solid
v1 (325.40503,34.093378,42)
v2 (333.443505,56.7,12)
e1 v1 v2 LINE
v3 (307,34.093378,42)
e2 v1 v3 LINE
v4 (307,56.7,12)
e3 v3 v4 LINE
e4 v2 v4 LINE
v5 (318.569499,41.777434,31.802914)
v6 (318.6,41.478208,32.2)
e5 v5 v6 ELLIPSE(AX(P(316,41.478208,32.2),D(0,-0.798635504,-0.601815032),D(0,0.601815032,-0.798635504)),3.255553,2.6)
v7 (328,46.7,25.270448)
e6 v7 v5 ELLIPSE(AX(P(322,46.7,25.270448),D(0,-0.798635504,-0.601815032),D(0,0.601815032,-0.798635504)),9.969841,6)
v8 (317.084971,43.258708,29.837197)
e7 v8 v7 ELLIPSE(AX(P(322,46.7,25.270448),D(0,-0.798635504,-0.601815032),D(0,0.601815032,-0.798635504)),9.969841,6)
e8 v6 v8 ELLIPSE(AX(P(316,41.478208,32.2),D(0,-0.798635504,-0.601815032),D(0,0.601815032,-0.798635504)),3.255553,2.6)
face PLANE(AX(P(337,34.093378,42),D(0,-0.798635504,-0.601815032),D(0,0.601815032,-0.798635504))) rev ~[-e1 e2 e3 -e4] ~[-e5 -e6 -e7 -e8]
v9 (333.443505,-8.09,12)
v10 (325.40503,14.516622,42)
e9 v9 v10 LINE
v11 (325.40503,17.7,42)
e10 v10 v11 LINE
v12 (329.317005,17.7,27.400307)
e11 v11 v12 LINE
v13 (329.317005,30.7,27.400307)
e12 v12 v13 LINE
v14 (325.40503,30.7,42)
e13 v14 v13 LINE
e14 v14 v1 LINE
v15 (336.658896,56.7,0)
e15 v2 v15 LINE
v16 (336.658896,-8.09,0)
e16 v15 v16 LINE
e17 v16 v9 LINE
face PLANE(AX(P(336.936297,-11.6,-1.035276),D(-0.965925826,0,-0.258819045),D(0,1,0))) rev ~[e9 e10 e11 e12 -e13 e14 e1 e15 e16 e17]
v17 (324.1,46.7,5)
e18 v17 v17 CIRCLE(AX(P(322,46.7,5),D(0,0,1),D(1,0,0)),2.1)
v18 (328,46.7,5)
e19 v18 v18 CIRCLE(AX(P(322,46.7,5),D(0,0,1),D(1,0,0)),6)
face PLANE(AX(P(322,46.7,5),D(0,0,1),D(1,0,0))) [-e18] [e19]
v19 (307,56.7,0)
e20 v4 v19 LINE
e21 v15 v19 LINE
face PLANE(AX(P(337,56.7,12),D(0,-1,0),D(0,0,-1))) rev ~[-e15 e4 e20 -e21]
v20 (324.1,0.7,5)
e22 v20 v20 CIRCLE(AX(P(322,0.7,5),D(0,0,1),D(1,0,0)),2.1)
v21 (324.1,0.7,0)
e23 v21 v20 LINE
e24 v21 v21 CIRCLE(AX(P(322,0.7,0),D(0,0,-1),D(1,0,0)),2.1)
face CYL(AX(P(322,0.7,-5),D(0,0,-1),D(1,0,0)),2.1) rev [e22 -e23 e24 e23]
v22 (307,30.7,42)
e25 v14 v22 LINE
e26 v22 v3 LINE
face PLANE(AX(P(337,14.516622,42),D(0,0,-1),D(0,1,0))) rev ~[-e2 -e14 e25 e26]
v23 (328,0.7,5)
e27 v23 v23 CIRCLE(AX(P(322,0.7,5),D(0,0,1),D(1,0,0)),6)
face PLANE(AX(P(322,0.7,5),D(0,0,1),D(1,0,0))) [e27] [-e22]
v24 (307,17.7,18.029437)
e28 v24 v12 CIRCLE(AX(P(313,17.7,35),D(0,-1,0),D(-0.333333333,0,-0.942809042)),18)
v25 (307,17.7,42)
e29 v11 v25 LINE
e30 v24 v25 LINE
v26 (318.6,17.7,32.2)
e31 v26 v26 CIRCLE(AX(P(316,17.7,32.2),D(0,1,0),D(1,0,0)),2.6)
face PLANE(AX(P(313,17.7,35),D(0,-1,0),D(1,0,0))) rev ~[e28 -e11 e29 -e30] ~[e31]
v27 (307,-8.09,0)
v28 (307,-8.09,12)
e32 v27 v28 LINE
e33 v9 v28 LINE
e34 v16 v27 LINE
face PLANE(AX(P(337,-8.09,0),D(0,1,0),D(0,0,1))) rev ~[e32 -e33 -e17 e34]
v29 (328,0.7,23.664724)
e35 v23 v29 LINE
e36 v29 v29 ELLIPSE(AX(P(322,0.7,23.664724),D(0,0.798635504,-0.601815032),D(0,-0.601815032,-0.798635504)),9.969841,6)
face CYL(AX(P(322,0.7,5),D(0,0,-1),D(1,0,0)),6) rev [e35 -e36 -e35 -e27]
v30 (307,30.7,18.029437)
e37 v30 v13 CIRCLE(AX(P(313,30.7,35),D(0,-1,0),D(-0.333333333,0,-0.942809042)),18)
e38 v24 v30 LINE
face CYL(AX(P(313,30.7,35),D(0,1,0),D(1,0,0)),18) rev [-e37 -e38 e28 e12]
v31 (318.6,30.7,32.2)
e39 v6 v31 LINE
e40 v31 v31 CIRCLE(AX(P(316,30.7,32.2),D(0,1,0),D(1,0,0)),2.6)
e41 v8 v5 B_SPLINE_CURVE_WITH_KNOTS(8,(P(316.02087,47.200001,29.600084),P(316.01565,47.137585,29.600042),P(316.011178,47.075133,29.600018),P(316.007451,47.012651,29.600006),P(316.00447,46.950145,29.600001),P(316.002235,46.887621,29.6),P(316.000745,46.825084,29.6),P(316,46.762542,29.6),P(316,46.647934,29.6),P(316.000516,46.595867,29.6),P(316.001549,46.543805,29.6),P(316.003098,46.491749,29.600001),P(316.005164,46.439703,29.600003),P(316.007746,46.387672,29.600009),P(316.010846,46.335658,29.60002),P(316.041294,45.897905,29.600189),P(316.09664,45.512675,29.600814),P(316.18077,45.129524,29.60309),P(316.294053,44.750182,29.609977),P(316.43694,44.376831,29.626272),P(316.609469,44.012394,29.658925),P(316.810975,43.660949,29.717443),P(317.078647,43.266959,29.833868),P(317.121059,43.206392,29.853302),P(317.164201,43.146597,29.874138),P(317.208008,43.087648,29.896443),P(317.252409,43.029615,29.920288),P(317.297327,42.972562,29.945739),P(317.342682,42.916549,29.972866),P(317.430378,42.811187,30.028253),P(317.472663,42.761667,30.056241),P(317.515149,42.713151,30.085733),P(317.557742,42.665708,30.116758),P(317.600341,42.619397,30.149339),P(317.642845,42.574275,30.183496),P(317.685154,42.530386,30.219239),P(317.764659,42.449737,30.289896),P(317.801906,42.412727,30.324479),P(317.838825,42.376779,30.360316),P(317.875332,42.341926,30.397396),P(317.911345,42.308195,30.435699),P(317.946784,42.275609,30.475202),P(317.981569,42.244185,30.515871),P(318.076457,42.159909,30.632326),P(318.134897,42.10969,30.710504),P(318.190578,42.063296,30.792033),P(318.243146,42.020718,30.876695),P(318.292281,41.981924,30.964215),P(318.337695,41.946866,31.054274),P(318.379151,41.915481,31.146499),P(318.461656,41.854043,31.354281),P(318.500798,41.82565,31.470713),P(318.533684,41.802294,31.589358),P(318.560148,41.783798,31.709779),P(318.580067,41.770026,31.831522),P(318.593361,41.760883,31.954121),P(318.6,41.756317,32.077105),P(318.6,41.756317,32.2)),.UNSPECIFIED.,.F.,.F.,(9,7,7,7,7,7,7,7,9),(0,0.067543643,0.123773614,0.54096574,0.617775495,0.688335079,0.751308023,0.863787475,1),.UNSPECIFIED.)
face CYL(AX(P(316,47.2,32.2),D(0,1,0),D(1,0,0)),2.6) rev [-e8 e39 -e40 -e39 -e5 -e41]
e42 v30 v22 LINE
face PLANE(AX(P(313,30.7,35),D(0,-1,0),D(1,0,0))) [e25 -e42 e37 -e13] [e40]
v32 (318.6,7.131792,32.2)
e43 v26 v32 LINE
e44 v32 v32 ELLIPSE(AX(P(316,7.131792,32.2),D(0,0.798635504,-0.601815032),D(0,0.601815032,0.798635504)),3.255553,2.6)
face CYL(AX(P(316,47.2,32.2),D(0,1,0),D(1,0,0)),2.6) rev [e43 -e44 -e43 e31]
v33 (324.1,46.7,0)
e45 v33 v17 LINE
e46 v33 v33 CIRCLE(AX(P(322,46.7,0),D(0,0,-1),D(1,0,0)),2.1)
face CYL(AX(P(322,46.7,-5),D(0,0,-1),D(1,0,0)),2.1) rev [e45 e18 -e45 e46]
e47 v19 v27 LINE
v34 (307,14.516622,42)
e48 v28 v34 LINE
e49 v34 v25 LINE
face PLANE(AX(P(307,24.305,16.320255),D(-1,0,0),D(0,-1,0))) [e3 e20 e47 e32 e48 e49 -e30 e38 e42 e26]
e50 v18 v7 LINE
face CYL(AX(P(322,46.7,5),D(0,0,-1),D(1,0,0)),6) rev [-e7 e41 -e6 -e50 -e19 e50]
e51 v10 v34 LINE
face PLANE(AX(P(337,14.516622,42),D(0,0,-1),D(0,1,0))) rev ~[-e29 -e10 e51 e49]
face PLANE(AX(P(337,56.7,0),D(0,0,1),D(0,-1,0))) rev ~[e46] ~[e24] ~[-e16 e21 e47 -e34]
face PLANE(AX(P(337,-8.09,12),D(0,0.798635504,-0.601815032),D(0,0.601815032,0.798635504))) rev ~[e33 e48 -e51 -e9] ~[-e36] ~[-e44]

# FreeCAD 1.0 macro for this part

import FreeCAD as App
import Part
import Sketcher
from FreeCAD import Vector
Q = App.Units.Quantity

doc = App.newDocument("Part")
body = doc.addObject("PartDesign::Body", "Body")

sketch1 = body.newObject("Sketcher::SketchObject", "Sketch")
sketch1.AttachmentSupport = (doc.getObject("XY_Plane"), [""])
sketch1.MapMode = "FlatFace"
sketch1.addGeometry([
    Part.LineSegment(Vector(0, 73, 0), Vector(0, 0, 0)),
    Part.LineSegment(Vector(0, 0, 0), Vector(14, 0, 0)),
    Part.LineSegment(Vector(14, 0, 0), Vector(14, 73, 0)),
    Part.LineSegment(Vector(14, 73, 0), Vector(0, 73, 0)),
], False)
sketch1.addConstraint([
    Sketcher.Constraint("Coincident", 0, 2, 1, 1),
    Sketcher.Constraint("Coincident", 1, 2, 2, 1),
    Sketcher.Constraint("Coincident", 2, 2, 3, 1),
    Sketcher.Constraint("Coincident", 3, 2, 0, 1),
    Sketcher.Constraint("Vertical", 0),
    Sketcher.Constraint("Horizontal", 1),
    Sketcher.Constraint("Vertical", 2),
    Sketcher.Constraint("Horizontal", 3),
    Sketcher.Constraint("Coincident", 0, 2, -1, 1),
    Sketcher.Constraint("DistanceX", 1, 1, 1, 2, Q("14 mm")),
    Sketcher.Constraint("DistanceY", 0, 2, 0, 1, Q("73 mm")),
])
pad1 = body.newObject("PartDesign::Pad", "Pad")
pad1.Profile = sketch1
pad1.Length = 51
body2 = doc.addObject("PartDesign::Body", "Body001")
doc.recompute()

body.Placement = App.Placement(Vector(336.936297, -53.3, -1.035276), App.Rotation(Vector(0, -1, 0), 15))
boolean = body2.newObject("PartDesign::Boolean", "Boolean")
boolean.Type = "Fuse"
boolean.addObjects([body])
body3 = doc.addObject("PartDesign::Body", "Body002")

sketch2 = body3.newObject("Sketcher::SketchObject", "Sketch001")
sketch2.AttachmentSupport = (doc.getObject("XZ_Plane002"), [""])
sketch2.MapMode = "FlatFace"
sketch2.AttachmentOffset = App.Placement(Vector(0, 0, -5.5), App.Rotation())
sketch2.addGeometry(Part.Circle(Vector(316, 32.2, 0), Vector(0, 0, 1), 2.6), False)
sketch2.addConstraint([
    Sketcher.Constraint("Diameter", 0, Q("5.2 mm")),
    Sketcher.Constraint("DistanceX", -1, 1, 0, 3, Q("316 mm")),
    Sketcher.Constraint("DistanceY", -1, 1, 0, 3, Q("32.2 mm")),
])
pad2 = body3.newObject("PartDesign::Pad", "Pad001")
pad2.Profile = sketch2
pad2.Length = 47
body4 = doc.addObject("PartDesign::Body", "Body003")

sketch3 = body4.newObject("Sketcher::SketchObject", "Sketch002")
sketch3.AttachmentSupport = (doc.getObject("XY_Plane003"), [""])
sketch3.MapMode = "FlatFace"
sketch3.AttachmentOffset = App.Placement(Vector(0, 0, 10), App.Rotation())
sketch3.addGeometry(Part.Circle(Vector(0, 0, 0), Vector(0, 0, 1), 6), False)
sketch3.addConstraint([
    Sketcher.Constraint("Coincident", 0, 3, -1, 1),
    Sketcher.Constraint("Diameter", 0, Q("12 mm")),
])
pad3 = body4.newObject("PartDesign::Pad", "Pad002")
pad3.Profile = sketch3
pad3.Length = 40
body5 = doc.addObject("PartDesign::Body", "Body004")

sketch4 = body5.newObject("Sketcher::SketchObject", "Sketch003")
sketch4.AttachmentSupport = (doc.getObject("XY_Plane004"), [""])
sketch4.MapMode = "FlatFace"
sketch4.addGeometry(Part.Circle(Vector(0, 0, 0), Vector(0, 0, 1), 2.1), False)
sketch4.addConstraint([
    Sketcher.Constraint("Coincident", 0, 3, -1, 1),
    Sketcher.Constraint("Diameter", 0, Q("4.2 mm")),
])
pad4 = body5.newObject("PartDesign::Pad", "Pad003")
pad4.Profile = sketch4
pad4.Length = 10
doc.recompute()

boolean2 = body5.newObject("PartDesign::Boolean", "Boolean001")
boolean2.Type = "Fuse"
boolean2.addObjects([body4])
body6 = doc.addObject("PartDesign::Body", "Body005")
doc.recompute()

body5.Placement = App.Placement(Vector(322, 5, -5), App.Rotation(Vector(0, 0, 1), 0))
boolean3 = body6.newObject("PartDesign::Boolean", "Boolean002")
boolean3.Type = "Fuse"
boolean3.addObjects([body5])
body7 = doc.addObject("PartDesign::Body", "Body006")

sketch5 = body7.newObject("Sketcher::SketchObject", "Sketch004")
sketch5.AttachmentSupport = (doc.getObject("XY_Plane006"), [""])
sketch5.MapMode = "FlatFace"
sketch5.AttachmentOffset = App.Placement(Vector(0, 0, 10), App.Rotation())
sketch5.addGeometry(Part.Circle(Vector(0, 0, 0), Vector(0, 0, 1), 6), False)
sketch5.addConstraint([
    Sketcher.Constraint("Coincident", 0, 3, -1, 1),
    Sketcher.Constraint("Diameter", 0, Q("12 mm")),
])
pad5 = body7.newObject("PartDesign::Pad", "Pad004")
pad5.Profile = sketch5
pad5.Length = 40
body8 = doc.addObject("PartDesign::Body", "Body007")

sketch6 = body8.newObject("Sketcher::SketchObject", "Sketch005")
sketch6.AttachmentSupport = (doc.getObject("XY_Plane007"), [""])
sketch6.MapMode = "FlatFace"
sketch6.addGeometry(Part.Circle(Vector(0, 0, 0), Vector(0, 0, 1), 2.1), False)
sketch6.addConstraint([
    Sketcher.Constraint("Coincident", 0, 3, -1, 1),
    Sketcher.Constraint("Diameter", 0, Q("4.2 mm")),
])
pad6 = body8.newObject("PartDesign::Pad", "Pad005")
pad6.Profile = sketch6
pad6.Length = 10
doc.recompute()

boolean4 = body8.newObject("PartDesign::Boolean", "Boolean003")
boolean4.Type = "Fuse"
boolean4.addObjects([body7])
body9 = doc.addObject("PartDesign::Body", "Body008")
doc.recompute()

body8.Placement = App.Placement(Vector(322, -41, -5), App.Rotation(Vector(0, 0, 1), 0))
boolean5 = body9.newObject("PartDesign::Boolean", "Boolean004")
boolean5.Type = "Fuse"
boolean5.addObjects([body8])
body10 = doc.addObject("PartDesign::Body", "Body009")

sketch7 = body10.newObject("Sketcher::SketchObject", "Sketch006")
sketch7.AttachmentSupport = (doc.getObject("XZ_Plane009"), [""])
sketch7.MapMode = "FlatFace"
sketch7.AttachmentOffset = App.Placement(Vector(0, 0, 11), App.Rotation())
sketch7.addGeometry(Part.Circle(Vector(313, 35, 0), Vector(0, 0, 1), 18), False)
sketch7.addConstraint([
    Sketcher.Constraint("Diameter", 0, Q("36 mm")),
    Sketcher.Constraint("DistanceX", -1, 1, 0, 3, Q("313 mm")),
    Sketcher.Constraint("DistanceY", -1, 1, 0, 3, Q("35 mm")),
])
pad7 = body10.newObject("PartDesign::Pad", "Pad006")
pad7.Profile = sketch7
pad7.Length = 13
body11 = doc.addObject("PartDesign::Body", "Body010")

sketch8 = body11.newObject("Sketcher::SketchObject", "Sketch007")
sketch8.AttachmentSupport = (doc.getObject("YZ_Plane010"), [""])
sketch8.MapMode = "FlatFace"
sketch8.addGeometry([
    Part.LineSegment(Vector(-50, 0, 0), Vector(15, 0, 0)),
    Part.LineSegment(Vector(15, 0, 0), Vector(15, 12, 0)),
    Part.LineSegment(Vector(15, 12, 0), Vector(-8, 42, 0)),
    Part.LineSegment(Vector(-8, 42, 0), Vector(-27, 42, 0)),
    Part.LineSegment(Vector(-27, 42, 0), Vector(-50, 12, 0)),
    Part.LineSegment(Vector(-50, 12, 0), Vector(-50, 0, 0)),
], False)
sketch8.addConstraint([
    Sketcher.Constraint("Coincident", 0, 2, 1, 1),
    Sketcher.Constraint("Coincident", 1, 2, 2, 1),
    Sketcher.Constraint("Coincident", 2, 2, 3, 1),
    Sketcher.Constraint("Coincident", 3, 2, 4, 1),
    Sketcher.Constraint("Coincident", 4, 2, 5, 1),
    Sketcher.Constraint("Coincident", 5, 2, 0, 1),
    Sketcher.Constraint("Horizontal", 0),
    Sketcher.Constraint("Vertical", 1),
    Sketcher.Constraint("Horizontal", 3),
    Sketcher.Constraint("Vertical", 5),
    Sketcher.Constraint("PointOnObject", 0, 2, -1),
    Sketcher.Constraint("Horizontal", 1, 2, 4, 2),
    Sketcher.Constraint("Equal", 2, 4),
    Sketcher.Constraint("DistanceY", 1, 1, 1, 2, Q("12 mm")),
    Sketcher.Constraint("Angle", 2, Q("127.000001 deg")),
    Sketcher.Constraint("DistanceX", -1, 1, 0, 2, Q("15 mm")),
    Sketcher.Constraint("DistanceY", -1, 1, 2, 2, Q("42 mm")),
    Sketcher.Constraint("DistanceX", 0, 1, 0, 2, Q("64.79 mm")),
])
pad8 = body11.newObject("PartDesign::Pad", "Pad007")
pad8.Profile = sketch8
pad8.Length = 30
pad8.Reversed = True
body12 = doc.addObject("PartDesign::Body", "Body011")
doc.recompute()

body11.Placement = App.Placement(Vector(337, 0, 0), App.Rotation(Vector(0, 0, 1), 0))
boolean6 = body12.newObject("PartDesign::Boolean", "Boolean005")
boolean6.Type = "Fuse"
boolean6.addObjects([body11])
doc.recompute()

boolean7 = body12.newObject("PartDesign::Boolean", "Boolean006")
boolean7.Type = "Cut"
boolean7.addObjects([body10])
doc.recompute()

boolean8 = body12.newObject("PartDesign::Boolean", "Boolean007")
boolean8.Type = "Cut"
boolean8.addObjects([body9])
doc.recompute()

boolean9 = body12.newObject("PartDesign::Boolean", "Boolean008")
boolean9.Type = "Cut"
boolean9.addObjects([body6])
doc.recompute()

boolean10 = body12.newObject("PartDesign::Boolean", "Boolean009")
boolean10.Type = "Cut"
boolean10.addObjects([body3])
doc.recompute()

boolean11 = body12.newObject("PartDesign::Boolean", "Boolean010")
boolean11.Type = "Cut"
boolean11.addObjects([body2])
body13 = doc.addObject("PartDesign::Body", "Body012")
doc.recompute()

body12.Placement = App.Placement(Vector(0, 41.7, 0), App.Rotation(Vector(0, 0, 1), 0))
boolean12 = body13.newObject("PartDesign::Boolean", "Boolean011")
boolean12.Type = "Fuse"
boolean12.addObjects([body12])

doc.recompute()
